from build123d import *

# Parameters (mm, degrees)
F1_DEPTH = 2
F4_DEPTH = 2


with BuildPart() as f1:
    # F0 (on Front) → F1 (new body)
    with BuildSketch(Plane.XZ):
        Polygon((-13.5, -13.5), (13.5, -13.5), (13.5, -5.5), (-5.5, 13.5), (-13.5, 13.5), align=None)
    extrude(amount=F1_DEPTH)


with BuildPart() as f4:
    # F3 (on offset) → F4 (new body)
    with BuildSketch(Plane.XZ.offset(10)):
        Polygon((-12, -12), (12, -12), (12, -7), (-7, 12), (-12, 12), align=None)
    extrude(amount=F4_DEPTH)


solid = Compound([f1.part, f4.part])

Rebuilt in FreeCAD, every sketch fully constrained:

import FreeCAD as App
import Part
import Sketcher
Q = App.Units.Quantity


def add_polygon(sketch, points):
    """Adds a closed chain of lines whose ends are joined by coincident constraints."""
    first, n = sketch.GeometryCount, len(points)
    for a, b in zip(points, points[1:] + points[:1]):
        sketch.addGeometry(Part.LineSegment(App.Vector(*a, 0), App.Vector(*b, 0)), False)
    for i in range(n):
        sketch.addConstraint(Sketcher.Constraint("Coincident", first + i, 2, first + (i + 1) % n, 1))

doc = App.newDocument("Part")
params = doc.addObject("Spreadsheet::Sheet", "Params")
for row, (alias, value) in enumerate([
    ("sketch1_width", "27 mm"),
    ("sketch1_width2", "8 mm"),
    ("pad1_length", "2 mm"),
    ("sketch2_width", "24 mm"),
    ("sketch2_width2", "5 mm"),
    ("pad2_length", "2 mm"),
], start=1):
    params.set(f"A{row}", alias)
    params.set(f"B{row}", "=" + value)
    params.setAlias(f"B{row}", alias)

body = doc.addObject("PartDesign::Body", "Body")

# Sketch on XZ plane
sketch1 = body.newObject("Sketcher::SketchObject", "Sketch")
sketch1.AttachmentSupport = (doc.getObject("XZ_Plane"), [""])
sketch1.MapMode = "FlatFace"
add_polygon(sketch1, [(-14, -14), (14, -14), (14, -6), (-6, 14), (-14, 14)])  # lines 0-4
sketch1.addConstraint([
    Sketcher.Constraint("Horizontal", 0),
    Sketcher.Constraint("Vertical", 1),
    Sketcher.Constraint("Horizontal", 3),
    Sketcher.Constraint("Vertical", 4),
    Sketcher.Constraint("Symmetric", 0, 2, 3, 2, -1, 1),
    Sketcher.Constraint("Equal", 3, 1),
    Sketcher.Constraint("Equal", 0, 4),
    Sketcher.Constraint("DistanceX", 0, 1, 0, 2, Q("27 mm")),
    Sketcher.Constraint("DistanceX", 3, 2, 3, 1, Q("8 mm")),
])
sketch1.setExpression("Constraints[12]", "Params.sketch1_width")
sketch1.setExpression("Constraints[13]", "Params.sketch1_width2")
pad1 = body.newObject("PartDesign::Pad", "Pad")
pad1.Profile = sketch1
pad1.setExpression("Length", "Params.pad1_length")
body2 = doc.addObject("PartDesign::Body", "Body001")

# Sketch on XZ plane
sketch2 = body2.newObject("Sketcher::SketchObject", "Sketch001")
sketch2.AttachmentSupport = (doc.getObject("XZ_Plane001"), [""])
sketch2.MapMode = "FlatFace"
sketch2.AttachmentOffset = App.Placement(App.Vector(0, 0, 10), App.Rotation())
add_polygon(sketch2, [(-12, -12), (12, -12), (12, -7), (-7, 12), (-12, 12)])  # lines 0-4
sketch2.addConstraint([
    Sketcher.Constraint("Horizontal", 0),
    Sketcher.Constraint("Vertical", 1),
    Sketcher.Constraint("Horizontal", 3),
    Sketcher.Constraint("Vertical", 4),
    Sketcher.Constraint("Symmetric", 0, 2, 3, 2, -1, 1),
    Sketcher.Constraint("Equal", 3, 1),
    Sketcher.Constraint("Equal", 0, 4),
    Sketcher.Constraint("DistanceX", 0, 1, 0, 2, Q("24 mm")),
    Sketcher.Constraint("DistanceX", 3, 2, 3, 1, Q("5 mm")),
])
sketch2.setExpression("Constraints[12]", "Params.sketch2_width")
sketch2.setExpression("Constraints[13]", "Params.sketch2_width2")
pad2 = body2.newObject("PartDesign::Pad", "Pad001")
pad2.Profile = sketch2
pad2.setExpression("Length", "Params.pad2_length")

doc.recompute()
